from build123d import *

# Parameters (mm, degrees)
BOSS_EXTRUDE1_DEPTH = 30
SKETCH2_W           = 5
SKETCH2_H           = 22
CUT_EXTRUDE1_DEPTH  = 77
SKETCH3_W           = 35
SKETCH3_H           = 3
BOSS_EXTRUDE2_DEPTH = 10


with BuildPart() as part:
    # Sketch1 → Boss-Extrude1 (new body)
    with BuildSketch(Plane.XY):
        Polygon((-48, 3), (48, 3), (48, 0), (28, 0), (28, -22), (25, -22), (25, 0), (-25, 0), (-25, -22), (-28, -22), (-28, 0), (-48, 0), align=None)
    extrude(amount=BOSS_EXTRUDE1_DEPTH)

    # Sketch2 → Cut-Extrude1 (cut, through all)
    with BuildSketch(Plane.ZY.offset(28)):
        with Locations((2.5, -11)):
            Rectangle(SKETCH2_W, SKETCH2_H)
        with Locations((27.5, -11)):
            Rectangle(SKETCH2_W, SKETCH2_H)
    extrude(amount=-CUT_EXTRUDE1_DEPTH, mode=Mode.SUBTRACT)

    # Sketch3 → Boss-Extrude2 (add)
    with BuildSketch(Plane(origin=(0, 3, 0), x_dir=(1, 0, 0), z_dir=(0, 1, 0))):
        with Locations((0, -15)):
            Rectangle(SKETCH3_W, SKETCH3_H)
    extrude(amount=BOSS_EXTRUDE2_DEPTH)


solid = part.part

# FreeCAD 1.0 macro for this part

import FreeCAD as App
import Part
import Sketcher

V = App.Vector
Q = App.Units.Quantity

doc = App.newDocument("Part")
body = doc.addObject("PartDesign::Body", "Body")

# Sketch on XY plane
sketch1 = body.newObject("Sketcher::SketchObject", "Sketch")
sketch1.AttachmentSupport = (doc.getObject("XY_Plane"), [""])
sketch1.MapMode = "FlatFace"
sketch1.addGeometry([
    Part.LineSegment(V(48, 3, 0), V(-48, 3, 0)),  # 0
    Part.LineSegment(V(-48, 3, 0), V(-48, 0, 0)),  # 1
    Part.LineSegment(V(-48, 0, 0), V(-28, 0, 0)),  # 2
    Part.LineSegment(V(-28, 0, 0), V(-28, -22, 0)),  # 3
    Part.LineSegment(V(-28, -22, 0), V(-25, -22, 0)),  # 4
    Part.LineSegment(V(-25, -22, 0), V(-25, 0, 0)),  # 5
    Part.LineSegment(V(-25, 0, 0), V(25, 0, 0)),  # 6
    Part.LineSegment(V(25, 0, 0), V(25, -22, 0)),  # 7
    Part.LineSegment(V(25, -22, 0), V(28, -22, 0)),  # 8
    Part.LineSegment(V(28, -22, 0), V(28, 0, 0)),  # 9
    Part.LineSegment(V(28, 0, 0), V(48, 0, 0)),  # 10
    Part.LineSegment(V(48, 0, 0), V(48, 3, 0)),  # 11
], False)
sketch1.addConstraint([
    Sketcher.Constraint("Coincident", 0, 2, 1, 1),
    Sketcher.Constraint("Coincident", 1, 2, 2, 1),
    Sketcher.Constraint("Coincident", 2, 2, 3, 1),
    Sketcher.Constraint("Coincident", 3, 2, 4, 1),
    Sketcher.Constraint("Coincident", 4, 2, 5, 1),
    Sketcher.Constraint("Coincident", 5, 2, 6, 1),
    Sketcher.Constraint("Coincident", 6, 2, 7, 1),
    Sketcher.Constraint("Coincident", 7, 2, 8, 1),
    Sketcher.Constraint("Coincident", 8, 2, 9, 1),
    Sketcher.Constraint("Coincident", 9, 2, 10, 1),
    Sketcher.Constraint("Coincident", 10, 2, 11, 1),
    Sketcher.Constraint("Coincident", 11, 2, 0, 1),
    Sketcher.Constraint("Horizontal", 0),
    Sketcher.Constraint("Vertical", 1),
    Sketcher.Constraint("Horizontal", 2),
    Sketcher.Constraint("Vertical", 3),
    Sketcher.Constraint("Horizontal", 4),
    Sketcher.Constraint("Vertical", 5),
    Sketcher.Constraint("Horizontal", 6),
    Sketcher.Constraint("Vertical", 7),
    Sketcher.Constraint("Horizontal", 8),
    Sketcher.Constraint("Vertical", 9),
    Sketcher.Constraint("Horizontal", 10),
    Sketcher.Constraint("Vertical", 11),
    Sketcher.Constraint("Symmetric", 5, 2, 6, 2, -1, 1),
    Sketcher.Constraint("Symmetric", 2, 2, 9, 2, -1, 1),
    Sketcher.Constraint("Symmetric", 1, 2, 10, 2, -2),
    Sketcher.Constraint("Horizontal", 4, 2, 7, 2),
    Sketcher.Constraint("Equal", 8, 1),
    Sketcher.Constraint("DistanceX", 0, 2, 0, 1, Q("96 mm")),
    Sketcher.Constraint("DistanceX", 2, 1, 2, 2, Q("20 mm")),
    Sketcher.Constraint("DistanceX", 4, 1, 4, 2, Q("3 mm")),
    Sketcher.Constraint("DistanceY", 3, 2, 3, 1, Q("22 mm")),
])
pad1 = body.newObject("PartDesign::Pad", "Pad")
pad1.Profile = sketch1
pad1.Length = 30

# Sketch on YZ plane
sketch2 = body.newObject("Sketcher::SketchObject", "Sketch001")
sketch2.AttachmentSupport = (doc.getObject("YZ_Plane"), [""])
sketch2.MapMode = "FlatFace"
sketch2.AttachmentOffset = App.Placement(V(0, 0, -28), App.Rotation())
sketch2.addGeometry([
    Part.LineSegment(V(0, 0, 0), V(-22, 0, 0)),  # 0
    Part.LineSegment(V(-22, 0, 0), V(-22, 5, 0)),  # 1
    Part.LineSegment(V(-22, 5, 0), V(0, 5, 0)),  # 2
    Part.LineSegment(V(0, 5, 0), V(0, 0, 0)),  # 3
    Part.LineSegment(V(0, 25, 0), V(-22, 25, 0)),  # 4
    Part.LineSegment(V(-22, 25, 0), V(-22, 30, 0)),  # 5
    Part.LineSegment(V(-22, 30, 0), V(0, 30, 0)),  # 6
    Part.LineSegment(V(0, 30, 0), V(0, 25, 0)),  # 7
], False)
sketch2.addConstraint([
    Sketcher.Constraint("Coincident", 0, 2, 1, 1),
    Sketcher.Constraint("Coincident", 1, 2, 2, 1),
    Sketcher.Constraint("Coincident", 2, 2, 3, 1),
    Sketcher.Constraint("Coincident", 3, 2, 0, 1),
    Sketcher.Constraint("Coincident", 4, 2, 5, 1),
    Sketcher.Constraint("Coincident", 5, 2, 6, 1),
    Sketcher.Constraint("Coincident", 6, 2, 7, 1),
    Sketcher.Constraint("Coincident", 7, 2, 4, 1),
    Sketcher.Constraint("Horizontal", 0),
    Sketcher.Constraint("Vertical", 1),
    Sketcher.Constraint("Horizontal", 2),
    Sketcher.Constraint("Vertical", 3),
    Sketcher.Constraint("Horizontal", 4),
    Sketcher.Constraint("Vertical", 5),
    Sketcher.Constraint("Horizontal", 6),
    Sketcher.Constraint("Vertical", 7),
    Sketcher.Constraint("Coincident", 3, 2, -1, 1),
    Sketcher.Constraint("PointOnObject", 6, 2, -2),
    Sketcher.Constraint("Vertical", 1, 2, 4, 2),
    Sketcher.Constraint("Equal", 3, 5),
    Sketcher.Constraint("DistanceX", 0, 2, 0, 1, Q("22 mm")),
    Sketcher.Constraint("DistanceY", 1, 1, 1, 2, Q("5 mm")),
    Sketcher.Constraint("DistanceY", -1, 1, 4, 2, Q("25 mm")),
])
pocket1 = body.newObject("PartDesign::Pocket", "Pocket")
pocket1.Profile = sketch2
pocket1.Type = "ThroughAll"
pocket1.Reversed = True

# Sketch on XZ plane
sketch3 = body.newObject("Sketcher::SketchObject", "Sketch002")
sketch3.AttachmentSupport = (doc.getObject("XZ_Plane"), [""])
sketch3.MapMode = "FlatFace"
sketch3.AttachmentOffset = App.Placement(V(0, 0, -3), App.Rotation())
sketch3.addGeometry([
    Part.LineSegment(V(-17.5, 13.5, 0), V(-17.5, 16.5, 0)),
    Part.LineSegment(V(-17.5, 16.5, 0), V(17.5, 16.5, 0)),
    Part.LineSegment(V(17.5, 16.5, 0), V(17.5, 13.5, 0)),
    Part.LineSegment(V(17.5, 13.5, 0), V(-17.5, 13.5, 0)),
], False)
sketch3.addConstraint([
    Sketcher.Constraint("Coincident", 0, 2, 1, 1),
    Sketcher.Constraint("Coincident", 1, 2, 2, 1),
    Sketcher.Constraint("Coincident", 2, 2, 3, 1),
    Sketcher.Constraint("Coincident", 3, 2, 0, 1),
    Sketcher.Constraint("Vertical", 0),
    Sketcher.Constraint("Horizontal", 1),
    Sketcher.Constraint("Vertical", 2),
    Sketcher.Constraint("Horizontal", 3),
    Sketcher.Constraint("DistanceX", 1, 1, 1, 2, Q("35 mm")),
    Sketcher.Constraint("DistanceY", 0, 1, 0, 2, Q("3 mm")),
    Sketcher.Constraint("DistanceX", 0, 2, -1, 1, Q("17.5 mm")),
    Sketcher.Constraint("DistanceY", -1, 1, 0, 2, Q("16.5 mm")),
])
pad2 = body.newObject("PartDesign::Pad", "Pad001")
pad2.Profile = sketch3
pad2.Length = 10
pad2.Reversed = True

doc.recompute()
